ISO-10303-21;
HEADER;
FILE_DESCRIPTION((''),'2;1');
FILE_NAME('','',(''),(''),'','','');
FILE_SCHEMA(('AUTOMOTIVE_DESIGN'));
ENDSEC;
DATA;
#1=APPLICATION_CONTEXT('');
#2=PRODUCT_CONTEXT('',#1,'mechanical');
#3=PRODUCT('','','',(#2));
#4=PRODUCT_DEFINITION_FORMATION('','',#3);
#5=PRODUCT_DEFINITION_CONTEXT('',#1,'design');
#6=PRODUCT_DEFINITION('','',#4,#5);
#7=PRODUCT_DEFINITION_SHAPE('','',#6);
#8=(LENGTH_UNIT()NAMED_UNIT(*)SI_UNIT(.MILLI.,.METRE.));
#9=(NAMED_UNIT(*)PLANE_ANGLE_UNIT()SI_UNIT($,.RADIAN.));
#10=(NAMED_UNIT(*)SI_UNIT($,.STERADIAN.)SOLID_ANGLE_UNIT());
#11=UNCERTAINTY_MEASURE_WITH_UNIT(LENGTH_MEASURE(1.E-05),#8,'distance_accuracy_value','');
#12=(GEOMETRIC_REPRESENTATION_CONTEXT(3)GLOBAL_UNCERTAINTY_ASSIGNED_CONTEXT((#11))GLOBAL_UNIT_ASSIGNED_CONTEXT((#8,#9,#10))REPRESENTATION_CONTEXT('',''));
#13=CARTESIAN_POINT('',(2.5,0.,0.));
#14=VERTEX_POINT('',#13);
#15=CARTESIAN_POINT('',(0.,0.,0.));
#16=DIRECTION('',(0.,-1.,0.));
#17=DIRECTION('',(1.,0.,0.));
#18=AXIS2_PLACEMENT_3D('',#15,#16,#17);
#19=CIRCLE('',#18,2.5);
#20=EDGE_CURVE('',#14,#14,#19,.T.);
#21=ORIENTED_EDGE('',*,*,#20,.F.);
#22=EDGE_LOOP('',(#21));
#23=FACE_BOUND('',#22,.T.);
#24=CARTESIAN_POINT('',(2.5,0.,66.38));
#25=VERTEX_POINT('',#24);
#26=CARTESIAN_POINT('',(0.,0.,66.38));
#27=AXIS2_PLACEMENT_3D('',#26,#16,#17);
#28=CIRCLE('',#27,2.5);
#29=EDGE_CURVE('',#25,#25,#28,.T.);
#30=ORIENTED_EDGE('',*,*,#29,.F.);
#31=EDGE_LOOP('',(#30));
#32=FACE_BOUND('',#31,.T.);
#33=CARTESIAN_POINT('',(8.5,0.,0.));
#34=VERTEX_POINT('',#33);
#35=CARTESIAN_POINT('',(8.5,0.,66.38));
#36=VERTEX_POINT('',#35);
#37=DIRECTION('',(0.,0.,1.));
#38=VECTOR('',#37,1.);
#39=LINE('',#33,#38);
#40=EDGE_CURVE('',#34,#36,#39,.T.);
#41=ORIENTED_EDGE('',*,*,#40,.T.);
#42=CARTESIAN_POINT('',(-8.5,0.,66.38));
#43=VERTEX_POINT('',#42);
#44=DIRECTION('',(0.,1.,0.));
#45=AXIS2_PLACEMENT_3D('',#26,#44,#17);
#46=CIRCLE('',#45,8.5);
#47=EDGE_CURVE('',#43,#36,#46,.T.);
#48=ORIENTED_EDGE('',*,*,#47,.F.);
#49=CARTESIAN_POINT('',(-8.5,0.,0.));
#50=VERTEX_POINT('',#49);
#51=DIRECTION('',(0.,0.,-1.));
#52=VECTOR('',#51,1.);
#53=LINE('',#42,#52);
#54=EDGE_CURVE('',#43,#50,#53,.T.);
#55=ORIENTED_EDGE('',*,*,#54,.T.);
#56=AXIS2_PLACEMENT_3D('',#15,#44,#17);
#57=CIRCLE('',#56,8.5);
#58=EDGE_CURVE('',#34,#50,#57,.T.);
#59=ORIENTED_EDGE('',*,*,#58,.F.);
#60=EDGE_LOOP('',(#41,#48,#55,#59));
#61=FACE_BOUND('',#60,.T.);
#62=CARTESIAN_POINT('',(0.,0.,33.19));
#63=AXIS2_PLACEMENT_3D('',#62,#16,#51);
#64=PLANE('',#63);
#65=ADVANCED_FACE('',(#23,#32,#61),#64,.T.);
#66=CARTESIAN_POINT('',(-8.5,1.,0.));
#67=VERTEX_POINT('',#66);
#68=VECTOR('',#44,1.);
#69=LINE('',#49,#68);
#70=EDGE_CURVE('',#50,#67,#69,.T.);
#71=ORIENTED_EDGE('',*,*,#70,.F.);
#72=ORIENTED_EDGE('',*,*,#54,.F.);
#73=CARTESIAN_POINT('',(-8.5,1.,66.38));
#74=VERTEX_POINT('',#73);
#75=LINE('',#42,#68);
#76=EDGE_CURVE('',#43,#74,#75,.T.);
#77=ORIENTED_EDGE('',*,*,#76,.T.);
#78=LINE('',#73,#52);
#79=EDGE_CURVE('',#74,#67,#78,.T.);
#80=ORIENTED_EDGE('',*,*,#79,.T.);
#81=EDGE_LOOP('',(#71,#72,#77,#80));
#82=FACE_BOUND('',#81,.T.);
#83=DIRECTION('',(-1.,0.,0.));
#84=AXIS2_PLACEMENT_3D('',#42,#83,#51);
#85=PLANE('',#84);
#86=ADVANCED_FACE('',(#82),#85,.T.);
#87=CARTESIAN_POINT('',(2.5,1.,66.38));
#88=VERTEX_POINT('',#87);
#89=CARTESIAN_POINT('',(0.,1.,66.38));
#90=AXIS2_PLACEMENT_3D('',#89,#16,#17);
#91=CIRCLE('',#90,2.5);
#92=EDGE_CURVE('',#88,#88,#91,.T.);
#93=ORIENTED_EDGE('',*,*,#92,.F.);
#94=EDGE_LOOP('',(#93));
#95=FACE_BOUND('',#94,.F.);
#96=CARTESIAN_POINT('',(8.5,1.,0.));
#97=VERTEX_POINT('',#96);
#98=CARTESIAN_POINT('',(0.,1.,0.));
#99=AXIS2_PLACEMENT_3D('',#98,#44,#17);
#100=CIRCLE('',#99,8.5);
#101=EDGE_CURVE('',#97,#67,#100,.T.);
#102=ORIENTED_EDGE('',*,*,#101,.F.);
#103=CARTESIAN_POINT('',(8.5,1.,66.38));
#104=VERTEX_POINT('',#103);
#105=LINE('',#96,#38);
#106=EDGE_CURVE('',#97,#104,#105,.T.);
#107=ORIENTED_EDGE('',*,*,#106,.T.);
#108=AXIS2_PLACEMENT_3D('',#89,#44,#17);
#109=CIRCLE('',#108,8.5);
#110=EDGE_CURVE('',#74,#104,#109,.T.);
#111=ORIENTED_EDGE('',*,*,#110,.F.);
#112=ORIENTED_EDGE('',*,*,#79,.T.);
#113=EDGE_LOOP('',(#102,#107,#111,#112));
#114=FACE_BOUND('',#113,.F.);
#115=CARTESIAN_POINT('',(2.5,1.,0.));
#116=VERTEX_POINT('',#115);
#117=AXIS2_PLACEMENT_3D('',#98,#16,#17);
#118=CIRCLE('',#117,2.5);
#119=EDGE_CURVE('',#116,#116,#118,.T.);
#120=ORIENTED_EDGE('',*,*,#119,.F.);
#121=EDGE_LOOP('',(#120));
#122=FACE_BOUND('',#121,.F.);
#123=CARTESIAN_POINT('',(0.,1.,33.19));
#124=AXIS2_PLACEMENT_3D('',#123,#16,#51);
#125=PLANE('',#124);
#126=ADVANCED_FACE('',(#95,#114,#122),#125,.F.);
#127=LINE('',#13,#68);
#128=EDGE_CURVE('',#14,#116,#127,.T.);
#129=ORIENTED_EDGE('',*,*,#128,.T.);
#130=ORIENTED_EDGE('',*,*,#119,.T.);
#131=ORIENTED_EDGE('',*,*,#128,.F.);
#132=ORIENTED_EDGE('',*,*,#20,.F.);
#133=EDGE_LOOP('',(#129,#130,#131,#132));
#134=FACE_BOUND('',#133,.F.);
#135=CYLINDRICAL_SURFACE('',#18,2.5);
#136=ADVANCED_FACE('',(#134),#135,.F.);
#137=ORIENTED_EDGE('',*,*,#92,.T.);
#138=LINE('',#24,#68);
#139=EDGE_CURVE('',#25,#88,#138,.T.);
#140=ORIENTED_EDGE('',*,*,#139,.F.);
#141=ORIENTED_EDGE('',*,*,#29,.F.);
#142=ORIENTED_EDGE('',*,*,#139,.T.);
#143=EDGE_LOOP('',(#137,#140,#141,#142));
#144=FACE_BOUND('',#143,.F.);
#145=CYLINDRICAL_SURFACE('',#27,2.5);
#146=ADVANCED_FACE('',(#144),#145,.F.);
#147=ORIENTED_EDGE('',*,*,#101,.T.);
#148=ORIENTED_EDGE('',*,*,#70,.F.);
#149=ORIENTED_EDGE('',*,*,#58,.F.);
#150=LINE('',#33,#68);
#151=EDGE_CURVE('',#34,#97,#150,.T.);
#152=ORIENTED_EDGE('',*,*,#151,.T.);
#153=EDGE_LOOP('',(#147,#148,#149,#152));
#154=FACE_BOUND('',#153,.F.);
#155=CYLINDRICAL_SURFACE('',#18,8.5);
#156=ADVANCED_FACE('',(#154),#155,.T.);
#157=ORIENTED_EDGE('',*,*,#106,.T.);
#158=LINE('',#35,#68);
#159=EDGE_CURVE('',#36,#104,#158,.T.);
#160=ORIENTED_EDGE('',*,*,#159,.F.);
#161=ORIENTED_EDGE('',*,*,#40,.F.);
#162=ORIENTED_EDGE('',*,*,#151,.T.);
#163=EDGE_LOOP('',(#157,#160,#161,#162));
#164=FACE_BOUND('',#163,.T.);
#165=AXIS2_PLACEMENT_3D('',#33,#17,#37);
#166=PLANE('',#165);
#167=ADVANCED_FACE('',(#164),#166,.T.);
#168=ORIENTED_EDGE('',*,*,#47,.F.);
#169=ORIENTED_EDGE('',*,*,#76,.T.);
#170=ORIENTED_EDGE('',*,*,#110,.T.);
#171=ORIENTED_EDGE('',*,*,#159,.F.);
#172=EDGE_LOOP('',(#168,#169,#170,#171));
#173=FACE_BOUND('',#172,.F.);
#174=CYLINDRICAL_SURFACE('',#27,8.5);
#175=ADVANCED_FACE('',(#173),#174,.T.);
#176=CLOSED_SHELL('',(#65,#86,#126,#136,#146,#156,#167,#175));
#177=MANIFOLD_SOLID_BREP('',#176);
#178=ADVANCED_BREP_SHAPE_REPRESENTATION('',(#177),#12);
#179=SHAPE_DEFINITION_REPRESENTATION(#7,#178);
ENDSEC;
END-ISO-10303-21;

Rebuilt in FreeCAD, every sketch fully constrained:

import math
import FreeCAD as App
import Part
import Sketcher

doc = App.newDocument("Part")
body = doc.addObject("PartDesign::Body", "Body")

sketch1 = body.newObject("Sketcher::SketchObject", "Sketch")
sketch1.AttachmentSupport = (doc.getObject("XZ_Plane"), [""])
sketch1.MapMode = "FlatFace"
sketch1.addGeometry(Part.ArcOfCircle(Part.Circle(App.Vector(0, 0, 0), App.Vector(0, 0, 1), 8.5), math.radians(180), math.radians(360)), False)
sketch1.addGeometry(Part.LineSegment(App.Vector(8.5, 0, 0), App.Vector(8.5, 66.4, 0)), False)
sketch1.addGeometry(Part.ArcOfCircle(Part.Circle(App.Vector(0, 66.4, 0), App.Vector(0, 0, 1), 8.5), math.radians(0), math.radians(180)), False)
sketch1.addGeometry(Part.LineSegment(App.Vector(-8.5, 66.4, 0), App.Vector(-8.5, 0, 0)), False)
sketch1.addGeometry(Part.Circle(App.Vector(0, 0, 0), App.Vector(0, 0, 1), 2.5), False)
sketch1.addGeometry(Part.Circle(App.Vector(0, 66.4, 0), App.Vector(0, 0, 1), 2.5), False)
sketch1.addConstraint(Sketcher.Constraint("Tangent", 0, 2, 1, 1))
sketch1.addConstraint(Sketcher.Constraint("Tangent", 1, 2, 2, 1))
sketch1.addConstraint(Sketcher.Constraint("Tangent", 2, 2, 3, 1))
sketch1.addConstraint(Sketcher.Constraint("Tangent", 3, 2, 0, 1))
sketch1.addConstraint(Sketcher.Constraint("Vertical", 1))
sketch1.addConstraint(Sketcher.Constraint("Vertical", 3))
sketch1.addConstraint(Sketcher.Constraint("Coincident", 0, 3, -1, 1))
sketch1.addConstraint(Sketcher.Constraint("Coincident", 4, 3, -1, 1))
sketch1.addConstraint(Sketcher.Constraint("Coincident", 5, 3, 2, 3))
sketch1.addConstraint(Sketcher.Constraint("Equal", 4, 5))
sketch1.addConstraint(Sketcher.Constraint("Diameter", 4, 5.0))
sketch1.addConstraint(Sketcher.Constraint("Radius", 0, 8.5))
sketch1.addConstraint(Sketcher.Constraint("DistanceY", 1, 1, 1, 2, 66.38))
pad1 = body.newObject("PartDesign::Pad", "Pad")
pad1.Profile = sketch1
pad1.Length = 1
pad1.Reversed = True

doc.recompute()
